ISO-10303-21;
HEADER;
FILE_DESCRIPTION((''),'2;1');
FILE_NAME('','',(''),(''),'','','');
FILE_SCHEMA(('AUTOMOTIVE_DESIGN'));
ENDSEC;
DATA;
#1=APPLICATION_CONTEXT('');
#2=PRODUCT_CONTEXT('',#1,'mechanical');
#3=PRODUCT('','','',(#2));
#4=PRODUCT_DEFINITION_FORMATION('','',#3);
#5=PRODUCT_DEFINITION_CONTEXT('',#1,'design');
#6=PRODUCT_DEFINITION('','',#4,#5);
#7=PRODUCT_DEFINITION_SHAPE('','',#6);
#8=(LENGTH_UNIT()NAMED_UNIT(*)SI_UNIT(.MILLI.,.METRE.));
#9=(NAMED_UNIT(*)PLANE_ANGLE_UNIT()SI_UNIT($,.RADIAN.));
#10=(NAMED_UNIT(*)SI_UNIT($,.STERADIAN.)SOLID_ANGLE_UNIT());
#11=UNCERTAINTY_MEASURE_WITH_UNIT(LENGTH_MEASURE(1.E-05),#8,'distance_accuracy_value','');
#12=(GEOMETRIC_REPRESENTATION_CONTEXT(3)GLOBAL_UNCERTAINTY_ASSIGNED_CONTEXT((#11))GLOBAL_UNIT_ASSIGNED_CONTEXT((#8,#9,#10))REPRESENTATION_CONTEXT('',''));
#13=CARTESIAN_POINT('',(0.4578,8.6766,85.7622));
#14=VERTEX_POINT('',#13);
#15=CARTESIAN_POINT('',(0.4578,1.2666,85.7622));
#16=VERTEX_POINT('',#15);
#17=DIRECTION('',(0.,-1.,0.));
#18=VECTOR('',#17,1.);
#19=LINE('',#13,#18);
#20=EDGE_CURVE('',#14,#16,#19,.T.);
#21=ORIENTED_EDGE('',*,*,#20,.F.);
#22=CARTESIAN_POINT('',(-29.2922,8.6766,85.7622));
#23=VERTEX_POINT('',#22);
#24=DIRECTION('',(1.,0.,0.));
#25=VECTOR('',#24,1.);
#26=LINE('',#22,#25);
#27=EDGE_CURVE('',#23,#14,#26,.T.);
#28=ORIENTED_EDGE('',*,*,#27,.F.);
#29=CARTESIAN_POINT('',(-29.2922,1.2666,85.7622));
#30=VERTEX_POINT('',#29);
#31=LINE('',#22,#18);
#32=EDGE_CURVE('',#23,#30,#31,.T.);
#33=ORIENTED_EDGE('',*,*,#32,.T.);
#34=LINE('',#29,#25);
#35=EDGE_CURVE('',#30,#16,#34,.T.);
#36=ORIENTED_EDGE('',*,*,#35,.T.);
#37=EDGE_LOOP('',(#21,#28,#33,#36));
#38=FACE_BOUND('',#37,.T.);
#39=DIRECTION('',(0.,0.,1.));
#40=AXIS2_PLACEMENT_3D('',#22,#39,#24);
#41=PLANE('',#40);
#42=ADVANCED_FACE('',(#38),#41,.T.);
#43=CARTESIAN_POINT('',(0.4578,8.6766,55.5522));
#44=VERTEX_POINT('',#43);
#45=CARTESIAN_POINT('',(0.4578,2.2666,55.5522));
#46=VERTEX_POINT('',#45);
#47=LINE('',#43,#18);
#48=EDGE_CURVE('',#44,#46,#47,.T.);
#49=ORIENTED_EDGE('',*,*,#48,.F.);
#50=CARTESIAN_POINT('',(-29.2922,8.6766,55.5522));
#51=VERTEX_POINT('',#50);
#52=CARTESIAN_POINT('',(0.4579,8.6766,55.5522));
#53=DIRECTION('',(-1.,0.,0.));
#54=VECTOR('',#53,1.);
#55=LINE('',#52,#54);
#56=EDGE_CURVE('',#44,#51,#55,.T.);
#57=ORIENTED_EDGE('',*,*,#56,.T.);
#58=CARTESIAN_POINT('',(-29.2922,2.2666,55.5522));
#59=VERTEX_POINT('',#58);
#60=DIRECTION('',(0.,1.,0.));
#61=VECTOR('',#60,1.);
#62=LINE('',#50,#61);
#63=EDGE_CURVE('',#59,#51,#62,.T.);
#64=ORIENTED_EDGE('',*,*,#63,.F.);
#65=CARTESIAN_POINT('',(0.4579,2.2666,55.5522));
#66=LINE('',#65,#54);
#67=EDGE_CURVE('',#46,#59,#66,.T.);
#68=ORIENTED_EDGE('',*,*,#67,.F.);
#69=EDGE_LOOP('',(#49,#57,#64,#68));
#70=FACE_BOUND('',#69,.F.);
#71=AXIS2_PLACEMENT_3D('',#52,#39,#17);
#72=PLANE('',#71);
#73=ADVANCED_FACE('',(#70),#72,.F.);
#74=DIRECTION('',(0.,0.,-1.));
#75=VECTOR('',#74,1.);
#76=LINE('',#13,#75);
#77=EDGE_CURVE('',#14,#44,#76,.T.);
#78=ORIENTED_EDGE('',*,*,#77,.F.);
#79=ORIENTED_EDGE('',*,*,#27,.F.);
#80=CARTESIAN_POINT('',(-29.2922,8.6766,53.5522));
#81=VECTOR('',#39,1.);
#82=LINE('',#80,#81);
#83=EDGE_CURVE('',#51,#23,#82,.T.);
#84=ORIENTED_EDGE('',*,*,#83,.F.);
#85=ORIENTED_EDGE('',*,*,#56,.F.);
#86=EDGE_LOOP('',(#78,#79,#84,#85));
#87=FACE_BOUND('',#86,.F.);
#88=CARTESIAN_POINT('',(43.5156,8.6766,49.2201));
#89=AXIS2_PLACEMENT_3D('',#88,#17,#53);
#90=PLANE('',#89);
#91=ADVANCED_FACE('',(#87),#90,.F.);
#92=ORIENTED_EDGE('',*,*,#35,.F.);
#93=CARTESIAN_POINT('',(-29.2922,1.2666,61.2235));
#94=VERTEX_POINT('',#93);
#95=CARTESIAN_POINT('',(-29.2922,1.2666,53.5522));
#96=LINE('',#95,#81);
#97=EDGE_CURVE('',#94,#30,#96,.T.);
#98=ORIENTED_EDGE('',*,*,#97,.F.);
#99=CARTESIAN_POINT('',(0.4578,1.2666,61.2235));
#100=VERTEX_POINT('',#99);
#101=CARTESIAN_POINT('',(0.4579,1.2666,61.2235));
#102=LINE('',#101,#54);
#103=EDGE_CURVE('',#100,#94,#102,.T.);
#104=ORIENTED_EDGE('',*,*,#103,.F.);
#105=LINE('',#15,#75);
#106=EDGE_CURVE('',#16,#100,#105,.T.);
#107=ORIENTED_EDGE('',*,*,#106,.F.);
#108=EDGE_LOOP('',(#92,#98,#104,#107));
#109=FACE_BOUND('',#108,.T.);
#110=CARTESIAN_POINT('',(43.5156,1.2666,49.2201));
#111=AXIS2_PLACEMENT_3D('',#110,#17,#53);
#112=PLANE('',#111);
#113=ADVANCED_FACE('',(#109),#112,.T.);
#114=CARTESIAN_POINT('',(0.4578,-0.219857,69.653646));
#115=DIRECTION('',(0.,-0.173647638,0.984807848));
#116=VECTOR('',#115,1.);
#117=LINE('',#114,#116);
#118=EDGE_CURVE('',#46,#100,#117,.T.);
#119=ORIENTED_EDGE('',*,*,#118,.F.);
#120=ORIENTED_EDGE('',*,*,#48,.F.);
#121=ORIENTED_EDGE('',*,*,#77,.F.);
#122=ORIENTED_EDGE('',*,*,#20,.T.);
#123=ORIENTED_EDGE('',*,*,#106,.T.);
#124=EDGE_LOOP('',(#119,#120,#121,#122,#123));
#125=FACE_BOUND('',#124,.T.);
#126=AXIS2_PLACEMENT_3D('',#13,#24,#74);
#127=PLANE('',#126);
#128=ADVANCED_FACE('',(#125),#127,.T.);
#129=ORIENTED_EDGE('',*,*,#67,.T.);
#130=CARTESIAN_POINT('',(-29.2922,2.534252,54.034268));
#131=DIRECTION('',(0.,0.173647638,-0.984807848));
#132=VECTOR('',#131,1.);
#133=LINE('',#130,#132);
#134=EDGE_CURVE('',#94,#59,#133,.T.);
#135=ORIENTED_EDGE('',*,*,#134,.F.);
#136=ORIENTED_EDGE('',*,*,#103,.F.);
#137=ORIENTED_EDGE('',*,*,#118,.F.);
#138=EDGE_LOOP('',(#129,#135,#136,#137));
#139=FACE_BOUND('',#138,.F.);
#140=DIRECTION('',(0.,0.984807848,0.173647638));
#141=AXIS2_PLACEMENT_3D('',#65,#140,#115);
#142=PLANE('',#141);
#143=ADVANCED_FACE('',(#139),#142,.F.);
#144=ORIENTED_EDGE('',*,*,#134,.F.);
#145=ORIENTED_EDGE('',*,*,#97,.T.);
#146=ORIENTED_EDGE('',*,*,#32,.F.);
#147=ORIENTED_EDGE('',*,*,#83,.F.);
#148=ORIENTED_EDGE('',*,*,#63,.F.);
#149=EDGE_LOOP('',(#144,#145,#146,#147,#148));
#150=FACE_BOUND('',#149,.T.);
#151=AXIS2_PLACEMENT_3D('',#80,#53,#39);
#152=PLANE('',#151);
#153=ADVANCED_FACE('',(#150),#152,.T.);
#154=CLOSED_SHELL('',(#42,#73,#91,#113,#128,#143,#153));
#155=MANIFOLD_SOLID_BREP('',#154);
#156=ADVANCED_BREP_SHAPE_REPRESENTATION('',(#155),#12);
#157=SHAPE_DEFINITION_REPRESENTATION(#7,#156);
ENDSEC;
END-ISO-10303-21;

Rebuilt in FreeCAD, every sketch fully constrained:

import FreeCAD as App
import Part
import Sketcher
Q = App.Units.Quantity


def add_polygon(sketch, points):
    """Adds a closed chain of lines whose ends are joined by coincident constraints."""
    first, n = sketch.GeometryCount, len(points)
    for a, b in zip(points, points[1:] + points[:1]):
        sketch.addGeometry(Part.LineSegment(App.Vector(*a, 0), App.Vector(*b, 0)), False)
    for i in range(n):
        sketch.addConstraint(Sketcher.Constraint("Coincident", first + i, 2, first + (i + 1) % n, 1))

doc = App.newDocument("Part")
body = doc.addObject("PartDesign::Body", "Body")

# Sketch on XZ plane
sketch1 = body.newObject("Sketcher::SketchObject", "Sketch")
sketch1.AttachmentSupport = (doc.getObject("XZ_Plane"), [""])
sketch1.MapMode = "FlatFace"
sketch1.AttachmentOffset = App.Placement(App.Vector(0, 0, -8.6766), App.Rotation())
add_polygon(sketch1, [(-29, 54), (0, 54), (0, 86), (-29, 86)])  # lines 0-3
sketch1.addConstraint([
    Sketcher.Constraint("Horizontal", 0),
    Sketcher.Constraint("Vertical", 1),
    Sketcher.Constraint("Horizontal", 2),
    Sketcher.Constraint("Vertical", 3),
    Sketcher.Constraint("DistanceX", 0, 1, 0, 2, 29.75),
    Sketcher.Constraint("DistanceY", 1, 1, 1, 2, 32.21),
    Sketcher.Constraint("DistanceX", -1, 1, 0, 2, 0.4578),
    Sketcher.Constraint("DistanceY", -1, 1, 0, 2, 53.5522),
])
pad1 = body.newObject("PartDesign::Pad", "Pad")
pad1.Profile = sketch1
pad1.Length = 7.41

# Sketch on YZ plane
sketch2 = body.newObject("Sketcher::SketchObject", "Sketch001")
sketch2.AttachmentSupport = (doc.getObject("YZ_Plane"), [""])
sketch2.MapMode = "FlatFace"
sketch2.AttachmentOffset = App.Placement(App.Vector(0, 0, 0.4579), App.Rotation())
add_polygon(sketch2, [(1.3, 53.6), (8.7, 53.6), (8.7, 55.6), (2.3, 55.6), (1.3, 61.2)])  # lines 0-4
sketch2.addConstraint([
    Sketcher.Constraint("Horizontal", 0),
    Sketcher.Constraint("Vertical", 1),
    Sketcher.Constraint("Horizontal", 2),
    Sketcher.Constraint("Vertical", 4),
    Sketcher.Constraint("DistanceY", 1, 1, 1, 2, 2.0),
    Sketcher.Constraint("Angle", 3, Q("100 deg")),
    Sketcher.Constraint("DistanceX", 3, 2, 2, 2, 1.0),
    Sketcher.Constraint("DistanceX", 0, 1, 0, 2, 7.41),
    Sketcher.Constraint("DistanceX", -1, 1, 0, 2, 8.6766),
    Sketcher.Constraint("DistanceY", -1, 1, 0, 2, 53.5522),
])
pocket1 = body.newObject("PartDesign::Pocket", "Pocket")
pocket1.Profile = sketch2
pocket1.Type = "ThroughAll"

doc.recompute()
